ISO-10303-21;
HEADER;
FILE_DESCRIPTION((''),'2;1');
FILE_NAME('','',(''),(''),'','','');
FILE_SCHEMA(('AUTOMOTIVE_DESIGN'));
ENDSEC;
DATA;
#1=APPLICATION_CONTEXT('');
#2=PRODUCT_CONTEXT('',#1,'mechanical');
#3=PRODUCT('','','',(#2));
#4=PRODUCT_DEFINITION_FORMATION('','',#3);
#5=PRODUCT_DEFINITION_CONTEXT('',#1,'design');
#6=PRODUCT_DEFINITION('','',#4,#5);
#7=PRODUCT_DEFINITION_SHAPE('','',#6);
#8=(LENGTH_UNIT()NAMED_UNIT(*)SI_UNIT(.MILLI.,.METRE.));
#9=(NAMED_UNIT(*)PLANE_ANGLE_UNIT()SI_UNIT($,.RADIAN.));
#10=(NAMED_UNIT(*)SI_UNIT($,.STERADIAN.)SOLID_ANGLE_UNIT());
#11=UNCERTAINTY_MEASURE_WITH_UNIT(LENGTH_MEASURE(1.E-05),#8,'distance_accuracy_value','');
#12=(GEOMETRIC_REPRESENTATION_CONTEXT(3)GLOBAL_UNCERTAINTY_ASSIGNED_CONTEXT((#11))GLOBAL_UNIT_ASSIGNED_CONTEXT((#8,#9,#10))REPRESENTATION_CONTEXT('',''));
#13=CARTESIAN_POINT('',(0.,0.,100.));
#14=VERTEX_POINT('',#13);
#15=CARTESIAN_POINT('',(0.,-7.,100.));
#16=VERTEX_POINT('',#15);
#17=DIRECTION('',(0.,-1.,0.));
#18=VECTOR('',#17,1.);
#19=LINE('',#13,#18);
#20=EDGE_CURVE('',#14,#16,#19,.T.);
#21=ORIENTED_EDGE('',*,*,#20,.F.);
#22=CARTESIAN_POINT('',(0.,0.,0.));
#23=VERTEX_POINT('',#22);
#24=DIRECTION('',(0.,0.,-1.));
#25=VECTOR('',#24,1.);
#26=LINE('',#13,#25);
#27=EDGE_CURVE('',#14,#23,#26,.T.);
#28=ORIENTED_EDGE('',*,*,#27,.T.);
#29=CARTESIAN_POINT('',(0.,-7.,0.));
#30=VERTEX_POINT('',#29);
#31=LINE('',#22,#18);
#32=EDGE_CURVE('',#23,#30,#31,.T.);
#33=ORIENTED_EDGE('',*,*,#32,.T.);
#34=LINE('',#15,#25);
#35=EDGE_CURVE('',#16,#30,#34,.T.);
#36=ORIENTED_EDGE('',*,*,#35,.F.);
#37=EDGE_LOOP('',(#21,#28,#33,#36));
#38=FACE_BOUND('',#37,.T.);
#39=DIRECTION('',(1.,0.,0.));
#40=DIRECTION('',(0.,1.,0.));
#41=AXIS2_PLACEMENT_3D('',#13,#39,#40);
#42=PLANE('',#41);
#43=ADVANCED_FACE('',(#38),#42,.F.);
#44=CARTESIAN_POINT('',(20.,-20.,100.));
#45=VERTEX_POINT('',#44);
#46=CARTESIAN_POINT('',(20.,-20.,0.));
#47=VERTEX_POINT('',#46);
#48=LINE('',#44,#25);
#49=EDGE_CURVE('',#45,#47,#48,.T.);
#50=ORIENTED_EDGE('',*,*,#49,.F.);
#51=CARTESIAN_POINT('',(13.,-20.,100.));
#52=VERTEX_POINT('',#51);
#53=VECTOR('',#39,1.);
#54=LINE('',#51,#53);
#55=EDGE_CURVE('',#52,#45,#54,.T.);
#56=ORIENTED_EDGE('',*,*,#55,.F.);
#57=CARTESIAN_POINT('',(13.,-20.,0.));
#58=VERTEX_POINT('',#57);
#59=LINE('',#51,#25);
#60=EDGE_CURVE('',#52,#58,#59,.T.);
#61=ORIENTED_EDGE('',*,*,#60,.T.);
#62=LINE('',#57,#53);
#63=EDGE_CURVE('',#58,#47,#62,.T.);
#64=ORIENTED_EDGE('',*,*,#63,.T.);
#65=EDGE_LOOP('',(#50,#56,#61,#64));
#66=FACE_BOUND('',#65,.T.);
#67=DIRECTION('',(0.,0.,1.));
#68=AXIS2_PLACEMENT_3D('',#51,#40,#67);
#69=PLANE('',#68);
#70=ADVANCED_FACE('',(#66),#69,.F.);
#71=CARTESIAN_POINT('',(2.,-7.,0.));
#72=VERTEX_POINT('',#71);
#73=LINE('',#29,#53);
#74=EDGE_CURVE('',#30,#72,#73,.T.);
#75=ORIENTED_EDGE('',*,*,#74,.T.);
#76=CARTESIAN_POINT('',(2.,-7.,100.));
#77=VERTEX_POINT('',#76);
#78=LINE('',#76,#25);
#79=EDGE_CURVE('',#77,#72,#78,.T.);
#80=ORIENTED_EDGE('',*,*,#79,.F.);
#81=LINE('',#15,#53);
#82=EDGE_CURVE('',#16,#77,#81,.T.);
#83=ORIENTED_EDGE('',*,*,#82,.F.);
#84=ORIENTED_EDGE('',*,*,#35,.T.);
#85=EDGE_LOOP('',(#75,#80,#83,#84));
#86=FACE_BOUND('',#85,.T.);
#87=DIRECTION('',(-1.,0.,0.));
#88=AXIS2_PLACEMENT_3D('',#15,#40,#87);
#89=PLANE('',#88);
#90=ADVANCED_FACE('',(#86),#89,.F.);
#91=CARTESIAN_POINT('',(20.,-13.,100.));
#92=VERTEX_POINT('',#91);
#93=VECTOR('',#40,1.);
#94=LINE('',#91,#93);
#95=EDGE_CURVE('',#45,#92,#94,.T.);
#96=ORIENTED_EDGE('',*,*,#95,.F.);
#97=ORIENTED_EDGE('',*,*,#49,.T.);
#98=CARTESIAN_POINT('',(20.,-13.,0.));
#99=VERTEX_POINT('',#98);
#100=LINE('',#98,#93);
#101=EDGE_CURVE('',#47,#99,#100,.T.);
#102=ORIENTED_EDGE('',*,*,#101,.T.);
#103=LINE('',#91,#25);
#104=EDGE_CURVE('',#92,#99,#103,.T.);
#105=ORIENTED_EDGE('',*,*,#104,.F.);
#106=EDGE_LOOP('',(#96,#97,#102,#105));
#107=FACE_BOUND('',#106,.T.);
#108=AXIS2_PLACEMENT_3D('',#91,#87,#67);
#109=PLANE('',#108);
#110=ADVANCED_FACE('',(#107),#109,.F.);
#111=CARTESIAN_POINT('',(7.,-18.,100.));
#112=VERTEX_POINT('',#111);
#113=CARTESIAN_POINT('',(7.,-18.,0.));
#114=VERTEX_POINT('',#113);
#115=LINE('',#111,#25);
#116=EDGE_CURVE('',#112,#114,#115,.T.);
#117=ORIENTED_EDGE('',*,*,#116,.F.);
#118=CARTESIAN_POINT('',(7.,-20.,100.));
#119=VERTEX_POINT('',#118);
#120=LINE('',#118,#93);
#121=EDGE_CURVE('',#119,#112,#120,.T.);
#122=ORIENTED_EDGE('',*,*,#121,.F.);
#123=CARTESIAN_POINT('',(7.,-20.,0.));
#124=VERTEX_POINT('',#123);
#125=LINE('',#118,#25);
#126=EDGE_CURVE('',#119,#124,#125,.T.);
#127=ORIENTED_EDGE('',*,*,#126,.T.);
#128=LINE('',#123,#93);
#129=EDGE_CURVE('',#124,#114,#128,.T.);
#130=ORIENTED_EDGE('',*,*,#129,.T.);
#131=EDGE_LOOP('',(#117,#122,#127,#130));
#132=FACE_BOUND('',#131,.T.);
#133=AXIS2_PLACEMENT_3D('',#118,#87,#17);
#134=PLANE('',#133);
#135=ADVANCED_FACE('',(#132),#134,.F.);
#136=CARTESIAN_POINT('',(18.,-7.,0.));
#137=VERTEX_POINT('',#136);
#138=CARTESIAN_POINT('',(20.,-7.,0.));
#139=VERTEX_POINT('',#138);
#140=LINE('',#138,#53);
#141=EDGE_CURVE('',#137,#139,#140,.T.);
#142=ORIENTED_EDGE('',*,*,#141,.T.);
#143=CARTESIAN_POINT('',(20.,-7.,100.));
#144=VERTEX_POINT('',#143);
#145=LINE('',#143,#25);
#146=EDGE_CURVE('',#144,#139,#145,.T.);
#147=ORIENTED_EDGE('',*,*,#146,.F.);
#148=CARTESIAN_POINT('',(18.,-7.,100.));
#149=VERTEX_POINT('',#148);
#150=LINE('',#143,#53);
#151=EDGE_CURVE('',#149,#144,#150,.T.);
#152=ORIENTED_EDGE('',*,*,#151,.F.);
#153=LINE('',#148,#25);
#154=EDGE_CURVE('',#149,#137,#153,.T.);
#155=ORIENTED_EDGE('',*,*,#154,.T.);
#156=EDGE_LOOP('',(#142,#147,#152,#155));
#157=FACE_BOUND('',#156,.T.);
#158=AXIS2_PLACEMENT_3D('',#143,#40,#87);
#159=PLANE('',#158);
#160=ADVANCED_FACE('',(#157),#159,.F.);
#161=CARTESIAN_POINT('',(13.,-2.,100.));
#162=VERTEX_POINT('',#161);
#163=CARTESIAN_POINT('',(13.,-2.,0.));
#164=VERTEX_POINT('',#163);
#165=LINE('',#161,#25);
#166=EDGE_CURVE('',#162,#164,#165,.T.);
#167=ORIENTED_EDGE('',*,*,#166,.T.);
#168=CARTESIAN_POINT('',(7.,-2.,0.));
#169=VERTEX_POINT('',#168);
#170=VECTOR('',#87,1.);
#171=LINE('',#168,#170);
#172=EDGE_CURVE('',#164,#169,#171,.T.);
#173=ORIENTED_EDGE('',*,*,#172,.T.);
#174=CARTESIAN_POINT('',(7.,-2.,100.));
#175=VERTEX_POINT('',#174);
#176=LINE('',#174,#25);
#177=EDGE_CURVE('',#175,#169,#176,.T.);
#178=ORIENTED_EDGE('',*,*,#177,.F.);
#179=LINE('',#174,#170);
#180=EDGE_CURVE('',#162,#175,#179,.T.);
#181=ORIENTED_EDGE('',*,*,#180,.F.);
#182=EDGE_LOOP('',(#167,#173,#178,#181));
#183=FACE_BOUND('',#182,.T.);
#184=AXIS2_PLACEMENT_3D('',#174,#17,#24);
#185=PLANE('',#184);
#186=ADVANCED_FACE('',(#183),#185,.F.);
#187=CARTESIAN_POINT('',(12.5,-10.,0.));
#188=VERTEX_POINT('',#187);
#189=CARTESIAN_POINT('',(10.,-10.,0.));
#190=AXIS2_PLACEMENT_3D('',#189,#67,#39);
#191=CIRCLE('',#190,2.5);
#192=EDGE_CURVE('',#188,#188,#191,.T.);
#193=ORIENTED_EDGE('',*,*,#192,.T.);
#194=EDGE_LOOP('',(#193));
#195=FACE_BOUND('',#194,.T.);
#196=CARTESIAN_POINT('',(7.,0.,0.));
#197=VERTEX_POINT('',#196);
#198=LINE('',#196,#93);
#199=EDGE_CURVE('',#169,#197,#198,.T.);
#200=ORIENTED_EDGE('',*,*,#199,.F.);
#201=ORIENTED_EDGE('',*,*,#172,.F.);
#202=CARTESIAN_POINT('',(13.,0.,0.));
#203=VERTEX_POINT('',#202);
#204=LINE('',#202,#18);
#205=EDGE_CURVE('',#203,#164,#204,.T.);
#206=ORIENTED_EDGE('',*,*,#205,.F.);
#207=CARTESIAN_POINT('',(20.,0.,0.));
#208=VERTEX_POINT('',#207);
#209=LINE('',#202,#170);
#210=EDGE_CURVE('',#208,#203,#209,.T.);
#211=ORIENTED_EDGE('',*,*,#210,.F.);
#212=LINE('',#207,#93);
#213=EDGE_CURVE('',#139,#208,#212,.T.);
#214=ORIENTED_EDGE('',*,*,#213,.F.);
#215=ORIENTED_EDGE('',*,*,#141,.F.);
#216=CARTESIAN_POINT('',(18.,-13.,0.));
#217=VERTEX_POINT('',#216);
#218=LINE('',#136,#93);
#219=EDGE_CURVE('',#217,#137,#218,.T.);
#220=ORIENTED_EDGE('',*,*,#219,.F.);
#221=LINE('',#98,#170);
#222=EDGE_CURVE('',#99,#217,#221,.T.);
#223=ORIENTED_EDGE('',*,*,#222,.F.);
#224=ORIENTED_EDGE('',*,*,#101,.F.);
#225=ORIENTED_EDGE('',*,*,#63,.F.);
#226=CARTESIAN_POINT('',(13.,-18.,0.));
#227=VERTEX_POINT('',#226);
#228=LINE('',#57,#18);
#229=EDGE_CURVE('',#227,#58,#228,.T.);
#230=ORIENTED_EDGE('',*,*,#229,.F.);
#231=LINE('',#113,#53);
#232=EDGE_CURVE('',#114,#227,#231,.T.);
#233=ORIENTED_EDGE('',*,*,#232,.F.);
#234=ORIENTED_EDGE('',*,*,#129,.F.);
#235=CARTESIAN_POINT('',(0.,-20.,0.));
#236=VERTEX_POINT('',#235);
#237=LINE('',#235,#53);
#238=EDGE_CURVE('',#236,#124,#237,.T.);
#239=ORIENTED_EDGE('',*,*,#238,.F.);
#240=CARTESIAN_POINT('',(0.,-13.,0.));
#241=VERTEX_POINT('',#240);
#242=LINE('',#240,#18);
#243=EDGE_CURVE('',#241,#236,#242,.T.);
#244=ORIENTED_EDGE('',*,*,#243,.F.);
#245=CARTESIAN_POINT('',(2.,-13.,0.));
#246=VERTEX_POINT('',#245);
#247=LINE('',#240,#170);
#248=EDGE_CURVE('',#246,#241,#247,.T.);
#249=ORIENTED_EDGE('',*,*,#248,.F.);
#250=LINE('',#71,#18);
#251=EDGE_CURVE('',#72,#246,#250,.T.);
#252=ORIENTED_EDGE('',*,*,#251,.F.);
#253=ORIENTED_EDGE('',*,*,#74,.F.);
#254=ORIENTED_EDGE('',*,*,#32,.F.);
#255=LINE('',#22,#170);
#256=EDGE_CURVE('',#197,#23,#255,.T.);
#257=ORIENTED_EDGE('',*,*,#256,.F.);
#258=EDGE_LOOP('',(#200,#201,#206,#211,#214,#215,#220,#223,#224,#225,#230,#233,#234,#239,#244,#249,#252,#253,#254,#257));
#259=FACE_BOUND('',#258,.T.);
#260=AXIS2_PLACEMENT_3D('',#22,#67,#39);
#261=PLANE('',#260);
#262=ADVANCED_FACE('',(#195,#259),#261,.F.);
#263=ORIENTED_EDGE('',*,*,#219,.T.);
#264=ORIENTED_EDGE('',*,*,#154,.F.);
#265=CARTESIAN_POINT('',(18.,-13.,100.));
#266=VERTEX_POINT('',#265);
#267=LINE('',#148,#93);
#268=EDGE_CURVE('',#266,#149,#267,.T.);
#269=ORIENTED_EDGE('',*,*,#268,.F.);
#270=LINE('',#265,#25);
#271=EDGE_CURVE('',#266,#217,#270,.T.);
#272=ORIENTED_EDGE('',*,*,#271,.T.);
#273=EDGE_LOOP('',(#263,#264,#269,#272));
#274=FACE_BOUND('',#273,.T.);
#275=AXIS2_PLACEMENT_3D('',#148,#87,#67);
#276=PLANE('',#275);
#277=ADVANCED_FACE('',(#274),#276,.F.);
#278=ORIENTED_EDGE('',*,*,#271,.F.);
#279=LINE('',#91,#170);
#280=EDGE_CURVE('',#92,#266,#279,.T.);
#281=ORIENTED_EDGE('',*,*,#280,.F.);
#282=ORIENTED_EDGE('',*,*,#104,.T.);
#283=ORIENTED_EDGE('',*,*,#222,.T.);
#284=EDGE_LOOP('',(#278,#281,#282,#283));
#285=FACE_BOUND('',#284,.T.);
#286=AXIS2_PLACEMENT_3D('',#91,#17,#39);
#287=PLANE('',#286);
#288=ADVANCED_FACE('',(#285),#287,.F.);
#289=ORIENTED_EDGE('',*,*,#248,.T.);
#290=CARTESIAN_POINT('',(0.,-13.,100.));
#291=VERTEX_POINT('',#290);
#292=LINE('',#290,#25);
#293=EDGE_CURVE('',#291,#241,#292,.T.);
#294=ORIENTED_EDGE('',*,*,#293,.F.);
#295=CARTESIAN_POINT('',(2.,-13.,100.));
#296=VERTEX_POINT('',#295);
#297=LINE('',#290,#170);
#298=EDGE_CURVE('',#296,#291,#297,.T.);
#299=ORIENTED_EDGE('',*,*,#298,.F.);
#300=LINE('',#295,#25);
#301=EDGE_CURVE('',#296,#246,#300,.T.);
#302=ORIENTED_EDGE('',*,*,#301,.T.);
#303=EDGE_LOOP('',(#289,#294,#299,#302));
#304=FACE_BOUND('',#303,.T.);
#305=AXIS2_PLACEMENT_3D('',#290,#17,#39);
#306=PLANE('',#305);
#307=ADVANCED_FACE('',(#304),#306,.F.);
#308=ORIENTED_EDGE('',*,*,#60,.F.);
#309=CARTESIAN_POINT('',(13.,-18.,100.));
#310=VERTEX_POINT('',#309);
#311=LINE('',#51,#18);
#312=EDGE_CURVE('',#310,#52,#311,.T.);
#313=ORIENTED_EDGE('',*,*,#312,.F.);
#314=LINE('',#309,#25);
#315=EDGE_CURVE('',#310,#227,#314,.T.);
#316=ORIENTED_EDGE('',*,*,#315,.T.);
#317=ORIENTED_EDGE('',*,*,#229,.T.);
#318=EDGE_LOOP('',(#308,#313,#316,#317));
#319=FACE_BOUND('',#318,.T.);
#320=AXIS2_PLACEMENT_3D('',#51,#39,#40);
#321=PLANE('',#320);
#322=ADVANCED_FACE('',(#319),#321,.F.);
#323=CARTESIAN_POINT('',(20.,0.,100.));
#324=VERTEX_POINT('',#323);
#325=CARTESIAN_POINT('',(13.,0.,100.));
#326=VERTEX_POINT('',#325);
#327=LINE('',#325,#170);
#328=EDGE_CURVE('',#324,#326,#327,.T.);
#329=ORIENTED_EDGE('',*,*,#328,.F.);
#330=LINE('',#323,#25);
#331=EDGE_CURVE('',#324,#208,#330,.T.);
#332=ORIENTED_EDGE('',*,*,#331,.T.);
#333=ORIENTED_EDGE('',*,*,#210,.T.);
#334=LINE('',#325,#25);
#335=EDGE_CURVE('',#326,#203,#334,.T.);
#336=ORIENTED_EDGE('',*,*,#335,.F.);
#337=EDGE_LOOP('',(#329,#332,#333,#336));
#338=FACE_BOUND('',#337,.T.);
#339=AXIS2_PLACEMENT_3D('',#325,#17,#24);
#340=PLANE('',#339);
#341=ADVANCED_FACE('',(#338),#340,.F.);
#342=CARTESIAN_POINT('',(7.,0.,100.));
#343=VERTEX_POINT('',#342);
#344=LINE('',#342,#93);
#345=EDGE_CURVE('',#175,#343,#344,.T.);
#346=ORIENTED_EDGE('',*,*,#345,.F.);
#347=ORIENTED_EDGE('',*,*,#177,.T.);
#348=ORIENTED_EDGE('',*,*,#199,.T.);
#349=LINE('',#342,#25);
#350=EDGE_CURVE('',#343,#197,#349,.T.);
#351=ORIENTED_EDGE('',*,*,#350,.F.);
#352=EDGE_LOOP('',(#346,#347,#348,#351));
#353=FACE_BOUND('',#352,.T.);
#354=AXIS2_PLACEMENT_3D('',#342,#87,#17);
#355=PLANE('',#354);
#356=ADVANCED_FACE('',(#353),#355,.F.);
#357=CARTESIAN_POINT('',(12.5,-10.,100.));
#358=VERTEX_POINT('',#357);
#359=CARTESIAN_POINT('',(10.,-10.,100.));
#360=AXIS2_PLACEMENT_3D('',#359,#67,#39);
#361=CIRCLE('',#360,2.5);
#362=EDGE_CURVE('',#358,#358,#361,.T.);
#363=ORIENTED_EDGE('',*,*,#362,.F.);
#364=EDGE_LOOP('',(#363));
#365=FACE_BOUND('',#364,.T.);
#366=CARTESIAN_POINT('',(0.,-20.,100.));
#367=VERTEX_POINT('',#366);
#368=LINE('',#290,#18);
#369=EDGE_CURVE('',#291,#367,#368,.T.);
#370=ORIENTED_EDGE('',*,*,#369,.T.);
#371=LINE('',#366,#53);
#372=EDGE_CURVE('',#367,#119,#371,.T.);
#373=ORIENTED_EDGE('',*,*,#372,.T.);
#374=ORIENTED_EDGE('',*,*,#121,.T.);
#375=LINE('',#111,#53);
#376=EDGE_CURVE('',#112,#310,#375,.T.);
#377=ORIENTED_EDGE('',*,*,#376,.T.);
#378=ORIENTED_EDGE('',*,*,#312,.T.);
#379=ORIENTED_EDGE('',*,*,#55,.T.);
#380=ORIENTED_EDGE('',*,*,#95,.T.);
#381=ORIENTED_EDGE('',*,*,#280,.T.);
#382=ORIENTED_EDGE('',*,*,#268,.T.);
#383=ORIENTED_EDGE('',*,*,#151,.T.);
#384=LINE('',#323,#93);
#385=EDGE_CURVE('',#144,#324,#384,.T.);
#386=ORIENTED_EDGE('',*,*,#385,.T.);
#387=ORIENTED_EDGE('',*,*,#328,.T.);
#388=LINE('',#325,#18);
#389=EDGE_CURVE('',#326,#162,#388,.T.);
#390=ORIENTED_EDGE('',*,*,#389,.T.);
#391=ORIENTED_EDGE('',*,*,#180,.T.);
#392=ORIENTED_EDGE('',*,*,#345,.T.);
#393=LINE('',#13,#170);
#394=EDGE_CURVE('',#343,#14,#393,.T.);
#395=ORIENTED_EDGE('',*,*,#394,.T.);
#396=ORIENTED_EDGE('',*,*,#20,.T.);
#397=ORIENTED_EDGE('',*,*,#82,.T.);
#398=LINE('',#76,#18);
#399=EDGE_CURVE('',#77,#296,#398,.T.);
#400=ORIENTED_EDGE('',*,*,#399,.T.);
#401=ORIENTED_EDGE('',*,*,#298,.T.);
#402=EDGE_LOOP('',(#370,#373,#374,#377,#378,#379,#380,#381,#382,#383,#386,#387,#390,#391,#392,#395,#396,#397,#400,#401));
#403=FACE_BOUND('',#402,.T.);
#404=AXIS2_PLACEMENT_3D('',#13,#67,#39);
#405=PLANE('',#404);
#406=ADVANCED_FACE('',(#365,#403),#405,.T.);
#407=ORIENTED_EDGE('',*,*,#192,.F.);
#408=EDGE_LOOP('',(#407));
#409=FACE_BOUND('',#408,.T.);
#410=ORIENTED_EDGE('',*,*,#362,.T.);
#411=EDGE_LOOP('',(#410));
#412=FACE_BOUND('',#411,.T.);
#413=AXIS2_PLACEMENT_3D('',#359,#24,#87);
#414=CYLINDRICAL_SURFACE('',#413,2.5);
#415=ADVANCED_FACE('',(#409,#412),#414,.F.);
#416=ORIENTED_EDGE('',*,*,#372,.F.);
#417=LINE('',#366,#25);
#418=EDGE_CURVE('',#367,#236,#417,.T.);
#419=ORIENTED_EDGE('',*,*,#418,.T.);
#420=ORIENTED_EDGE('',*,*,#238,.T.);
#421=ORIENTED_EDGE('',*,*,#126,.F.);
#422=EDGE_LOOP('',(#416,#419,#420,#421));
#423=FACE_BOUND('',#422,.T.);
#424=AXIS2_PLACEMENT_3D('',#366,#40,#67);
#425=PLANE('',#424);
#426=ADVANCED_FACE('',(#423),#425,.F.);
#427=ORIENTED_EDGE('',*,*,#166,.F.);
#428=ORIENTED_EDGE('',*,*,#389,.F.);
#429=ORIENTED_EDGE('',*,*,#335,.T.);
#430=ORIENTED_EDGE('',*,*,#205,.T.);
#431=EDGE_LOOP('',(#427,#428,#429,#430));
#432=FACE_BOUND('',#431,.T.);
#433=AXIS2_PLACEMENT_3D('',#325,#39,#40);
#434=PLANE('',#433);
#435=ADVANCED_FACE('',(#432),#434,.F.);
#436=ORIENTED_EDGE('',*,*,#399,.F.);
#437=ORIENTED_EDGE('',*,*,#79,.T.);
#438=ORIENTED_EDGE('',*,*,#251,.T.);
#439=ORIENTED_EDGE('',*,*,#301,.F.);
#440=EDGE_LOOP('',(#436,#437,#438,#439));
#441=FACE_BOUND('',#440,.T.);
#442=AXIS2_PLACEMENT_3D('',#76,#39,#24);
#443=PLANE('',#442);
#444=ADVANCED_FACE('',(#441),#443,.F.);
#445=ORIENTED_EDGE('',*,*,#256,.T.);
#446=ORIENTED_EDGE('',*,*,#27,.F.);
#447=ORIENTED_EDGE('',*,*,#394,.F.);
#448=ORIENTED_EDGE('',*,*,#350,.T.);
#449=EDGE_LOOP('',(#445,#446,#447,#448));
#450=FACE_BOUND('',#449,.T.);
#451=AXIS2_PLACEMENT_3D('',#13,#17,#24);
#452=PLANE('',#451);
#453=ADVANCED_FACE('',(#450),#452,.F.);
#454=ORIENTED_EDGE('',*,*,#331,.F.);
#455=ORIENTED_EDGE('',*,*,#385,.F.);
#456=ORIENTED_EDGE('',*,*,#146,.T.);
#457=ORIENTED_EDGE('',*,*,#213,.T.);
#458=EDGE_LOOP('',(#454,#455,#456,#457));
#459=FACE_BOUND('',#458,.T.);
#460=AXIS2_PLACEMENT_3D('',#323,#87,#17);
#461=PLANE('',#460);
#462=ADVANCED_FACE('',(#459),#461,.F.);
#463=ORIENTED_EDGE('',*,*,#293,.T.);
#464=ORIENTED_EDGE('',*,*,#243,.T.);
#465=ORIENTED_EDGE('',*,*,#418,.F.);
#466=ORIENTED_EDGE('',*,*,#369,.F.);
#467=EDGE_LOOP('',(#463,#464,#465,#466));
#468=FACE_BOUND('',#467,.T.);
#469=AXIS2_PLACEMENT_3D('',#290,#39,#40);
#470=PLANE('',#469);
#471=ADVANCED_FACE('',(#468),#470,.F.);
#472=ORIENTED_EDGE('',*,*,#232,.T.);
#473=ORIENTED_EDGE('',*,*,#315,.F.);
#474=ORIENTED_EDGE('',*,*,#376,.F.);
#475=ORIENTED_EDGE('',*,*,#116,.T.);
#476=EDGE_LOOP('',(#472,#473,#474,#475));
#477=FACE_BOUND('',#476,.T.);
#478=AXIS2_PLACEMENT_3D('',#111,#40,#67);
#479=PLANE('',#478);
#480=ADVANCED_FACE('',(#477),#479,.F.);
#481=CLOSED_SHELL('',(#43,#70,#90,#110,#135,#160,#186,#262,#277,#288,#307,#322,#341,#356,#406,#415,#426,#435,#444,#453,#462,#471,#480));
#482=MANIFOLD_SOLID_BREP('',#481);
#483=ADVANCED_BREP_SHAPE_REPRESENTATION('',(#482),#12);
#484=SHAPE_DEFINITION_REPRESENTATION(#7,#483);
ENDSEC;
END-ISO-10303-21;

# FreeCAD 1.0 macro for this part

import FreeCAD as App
import Part
import Sketcher

V = App.Vector


def add_polygon(sketch, points):
    """Adds a closed chain of lines whose ends are joined by coincident constraints."""
    first, n = sketch.GeometryCount, len(points)
    for a, b in zip(points, points[1:] + points[:1]):
        sketch.addGeometry(Part.LineSegment(App.Vector(*a, 0), App.Vector(*b, 0)), False)
    for i in range(n):
        sketch.addConstraint(Sketcher.Constraint("Coincident", first + i, 2, first + (i + 1) % n, 1))

doc = App.newDocument("Part")
body = doc.addObject("PartDesign::Body", "Body")

sketch1 = body.newObject("Sketcher::SketchObject", "Sketch")
sketch1.AttachmentSupport = (doc.getObject("XY_Plane"), [""])
sketch1.MapMode = "FlatFace"
add_polygon(sketch1, [(0, -13), (0, -20), (7, -20), (7, -18), (13, -18), (13, -20), (20, -20), (20, -13), (18, -13), (18, -7), (20, -7), (20, 0), (13, 0), (13, -2), (7, -2), (7, 0), (0, 0), (0, -7), (2, -7), (2, -13)])
sketch1.addGeometry(Part.Circle(V(10, -10, 0), V(0, 0, 1), 2.5), False)
sketch1.addConstraint(Sketcher.Constraint("Vertical", 0))
sketch1.addConstraint(Sketcher.Constraint("Horizontal", 1))
sketch1.addConstraint(Sketcher.Constraint("Vertical", 2))
sketch1.addConstraint(Sketcher.Constraint("Horizontal", 3))
sketch1.addConstraint(Sketcher.Constraint("Vertical", 4))
sketch1.addConstraint(Sketcher.Constraint("Horizontal", 5))
sketch1.addConstraint(Sketcher.Constraint("Vertical", 6))
sketch1.addConstraint(Sketcher.Constraint("Horizontal", 7))
sketch1.addConstraint(Sketcher.Constraint("Vertical", 8))
sketch1.addConstraint(Sketcher.Constraint("Horizontal", 9))
sketch1.addConstraint(Sketcher.Constraint("Vertical", 10))
sketch1.addConstraint(Sketcher.Constraint("Horizontal", 11))
sketch1.addConstraint(Sketcher.Constraint("Vertical", 12))
sketch1.addConstraint(Sketcher.Constraint("Horizontal", 13))
sketch1.addConstraint(Sketcher.Constraint("Vertical", 14))
sketch1.addConstraint(Sketcher.Constraint("Horizontal", 15))
sketch1.addConstraint(Sketcher.Constraint("Vertical", 16))
sketch1.addConstraint(Sketcher.Constraint("Horizontal", 17))
sketch1.addConstraint(Sketcher.Constraint("Vertical", 18))
sketch1.addConstraint(Sketcher.Constraint("Horizontal", 19))
sketch1.addConstraint(Sketcher.Constraint("Coincident", 15, 2, -1, 1))
sketch1.addConstraint(Sketcher.Constraint("PointOnObject", 0, 2, -2))
sketch1.addConstraint(Sketcher.Constraint("PointOnObject", 10, 2, -1))
sketch1.addConstraint(Sketcher.Constraint("Horizontal", 1, 2, 4, 2))
sketch1.addConstraint(Sketcher.Constraint("Horizontal", 9, 2, 16, 2))
sketch1.addConstraint(Sketcher.Constraint("Horizontal", 7, 2, 18, 2))
sketch1.addConstraint(Sketcher.Constraint("Vertical", 6, 2, 9, 2))
sketch1.addConstraint(Sketcher.Constraint("Vertical", 4, 2, 11, 2))
sketch1.addConstraint(Sketcher.Constraint("Vertical", 2, 2, 13, 2))
sketch1.addConstraint(Sketcher.Constraint("Equal", 1, 5))
sketch1.addConstraint(Sketcher.Constraint("Equal", 9, 17))
sketch1.addConstraint(Sketcher.Constraint("Equal", 15, 0))
sketch1.addConstraint(Sketcher.Constraint("Equal", 19, 2))
sketch1.addConstraint(Sketcher.Constraint("Equal", 13, 8))
sketch1.addConstraint(Sketcher.Constraint("Equal", 6, 10))
sketch1.addConstraint(Sketcher.Constraint("Equal", 4, 12))
sketch1.addConstraint(Sketcher.Constraint("Diameter", 20, 5.0))
sketch1.addConstraint(Sketcher.Constraint("DistanceX", 1, 1, 1, 2, 7.0))
sketch1.addConstraint(Sketcher.Constraint("DistanceX", 3, 1, 3, 2, 6.0))
sketch1.addConstraint(Sketcher.Constraint("DistanceX", 7, 2, 7, 1, 2.0))
sketch1.addConstraint(Sketcher.Constraint("DistanceX", -1, 1, 20, 3, 10.0))
sketch1.addConstraint(Sketcher.Constraint("DistanceY", 20, 3, -1, 1, 10.0))
pad1 = body.newObject("PartDesign::Pad", "Pad")
pad1.Profile = sketch1
pad1.Length = 100

doc.recompute()
